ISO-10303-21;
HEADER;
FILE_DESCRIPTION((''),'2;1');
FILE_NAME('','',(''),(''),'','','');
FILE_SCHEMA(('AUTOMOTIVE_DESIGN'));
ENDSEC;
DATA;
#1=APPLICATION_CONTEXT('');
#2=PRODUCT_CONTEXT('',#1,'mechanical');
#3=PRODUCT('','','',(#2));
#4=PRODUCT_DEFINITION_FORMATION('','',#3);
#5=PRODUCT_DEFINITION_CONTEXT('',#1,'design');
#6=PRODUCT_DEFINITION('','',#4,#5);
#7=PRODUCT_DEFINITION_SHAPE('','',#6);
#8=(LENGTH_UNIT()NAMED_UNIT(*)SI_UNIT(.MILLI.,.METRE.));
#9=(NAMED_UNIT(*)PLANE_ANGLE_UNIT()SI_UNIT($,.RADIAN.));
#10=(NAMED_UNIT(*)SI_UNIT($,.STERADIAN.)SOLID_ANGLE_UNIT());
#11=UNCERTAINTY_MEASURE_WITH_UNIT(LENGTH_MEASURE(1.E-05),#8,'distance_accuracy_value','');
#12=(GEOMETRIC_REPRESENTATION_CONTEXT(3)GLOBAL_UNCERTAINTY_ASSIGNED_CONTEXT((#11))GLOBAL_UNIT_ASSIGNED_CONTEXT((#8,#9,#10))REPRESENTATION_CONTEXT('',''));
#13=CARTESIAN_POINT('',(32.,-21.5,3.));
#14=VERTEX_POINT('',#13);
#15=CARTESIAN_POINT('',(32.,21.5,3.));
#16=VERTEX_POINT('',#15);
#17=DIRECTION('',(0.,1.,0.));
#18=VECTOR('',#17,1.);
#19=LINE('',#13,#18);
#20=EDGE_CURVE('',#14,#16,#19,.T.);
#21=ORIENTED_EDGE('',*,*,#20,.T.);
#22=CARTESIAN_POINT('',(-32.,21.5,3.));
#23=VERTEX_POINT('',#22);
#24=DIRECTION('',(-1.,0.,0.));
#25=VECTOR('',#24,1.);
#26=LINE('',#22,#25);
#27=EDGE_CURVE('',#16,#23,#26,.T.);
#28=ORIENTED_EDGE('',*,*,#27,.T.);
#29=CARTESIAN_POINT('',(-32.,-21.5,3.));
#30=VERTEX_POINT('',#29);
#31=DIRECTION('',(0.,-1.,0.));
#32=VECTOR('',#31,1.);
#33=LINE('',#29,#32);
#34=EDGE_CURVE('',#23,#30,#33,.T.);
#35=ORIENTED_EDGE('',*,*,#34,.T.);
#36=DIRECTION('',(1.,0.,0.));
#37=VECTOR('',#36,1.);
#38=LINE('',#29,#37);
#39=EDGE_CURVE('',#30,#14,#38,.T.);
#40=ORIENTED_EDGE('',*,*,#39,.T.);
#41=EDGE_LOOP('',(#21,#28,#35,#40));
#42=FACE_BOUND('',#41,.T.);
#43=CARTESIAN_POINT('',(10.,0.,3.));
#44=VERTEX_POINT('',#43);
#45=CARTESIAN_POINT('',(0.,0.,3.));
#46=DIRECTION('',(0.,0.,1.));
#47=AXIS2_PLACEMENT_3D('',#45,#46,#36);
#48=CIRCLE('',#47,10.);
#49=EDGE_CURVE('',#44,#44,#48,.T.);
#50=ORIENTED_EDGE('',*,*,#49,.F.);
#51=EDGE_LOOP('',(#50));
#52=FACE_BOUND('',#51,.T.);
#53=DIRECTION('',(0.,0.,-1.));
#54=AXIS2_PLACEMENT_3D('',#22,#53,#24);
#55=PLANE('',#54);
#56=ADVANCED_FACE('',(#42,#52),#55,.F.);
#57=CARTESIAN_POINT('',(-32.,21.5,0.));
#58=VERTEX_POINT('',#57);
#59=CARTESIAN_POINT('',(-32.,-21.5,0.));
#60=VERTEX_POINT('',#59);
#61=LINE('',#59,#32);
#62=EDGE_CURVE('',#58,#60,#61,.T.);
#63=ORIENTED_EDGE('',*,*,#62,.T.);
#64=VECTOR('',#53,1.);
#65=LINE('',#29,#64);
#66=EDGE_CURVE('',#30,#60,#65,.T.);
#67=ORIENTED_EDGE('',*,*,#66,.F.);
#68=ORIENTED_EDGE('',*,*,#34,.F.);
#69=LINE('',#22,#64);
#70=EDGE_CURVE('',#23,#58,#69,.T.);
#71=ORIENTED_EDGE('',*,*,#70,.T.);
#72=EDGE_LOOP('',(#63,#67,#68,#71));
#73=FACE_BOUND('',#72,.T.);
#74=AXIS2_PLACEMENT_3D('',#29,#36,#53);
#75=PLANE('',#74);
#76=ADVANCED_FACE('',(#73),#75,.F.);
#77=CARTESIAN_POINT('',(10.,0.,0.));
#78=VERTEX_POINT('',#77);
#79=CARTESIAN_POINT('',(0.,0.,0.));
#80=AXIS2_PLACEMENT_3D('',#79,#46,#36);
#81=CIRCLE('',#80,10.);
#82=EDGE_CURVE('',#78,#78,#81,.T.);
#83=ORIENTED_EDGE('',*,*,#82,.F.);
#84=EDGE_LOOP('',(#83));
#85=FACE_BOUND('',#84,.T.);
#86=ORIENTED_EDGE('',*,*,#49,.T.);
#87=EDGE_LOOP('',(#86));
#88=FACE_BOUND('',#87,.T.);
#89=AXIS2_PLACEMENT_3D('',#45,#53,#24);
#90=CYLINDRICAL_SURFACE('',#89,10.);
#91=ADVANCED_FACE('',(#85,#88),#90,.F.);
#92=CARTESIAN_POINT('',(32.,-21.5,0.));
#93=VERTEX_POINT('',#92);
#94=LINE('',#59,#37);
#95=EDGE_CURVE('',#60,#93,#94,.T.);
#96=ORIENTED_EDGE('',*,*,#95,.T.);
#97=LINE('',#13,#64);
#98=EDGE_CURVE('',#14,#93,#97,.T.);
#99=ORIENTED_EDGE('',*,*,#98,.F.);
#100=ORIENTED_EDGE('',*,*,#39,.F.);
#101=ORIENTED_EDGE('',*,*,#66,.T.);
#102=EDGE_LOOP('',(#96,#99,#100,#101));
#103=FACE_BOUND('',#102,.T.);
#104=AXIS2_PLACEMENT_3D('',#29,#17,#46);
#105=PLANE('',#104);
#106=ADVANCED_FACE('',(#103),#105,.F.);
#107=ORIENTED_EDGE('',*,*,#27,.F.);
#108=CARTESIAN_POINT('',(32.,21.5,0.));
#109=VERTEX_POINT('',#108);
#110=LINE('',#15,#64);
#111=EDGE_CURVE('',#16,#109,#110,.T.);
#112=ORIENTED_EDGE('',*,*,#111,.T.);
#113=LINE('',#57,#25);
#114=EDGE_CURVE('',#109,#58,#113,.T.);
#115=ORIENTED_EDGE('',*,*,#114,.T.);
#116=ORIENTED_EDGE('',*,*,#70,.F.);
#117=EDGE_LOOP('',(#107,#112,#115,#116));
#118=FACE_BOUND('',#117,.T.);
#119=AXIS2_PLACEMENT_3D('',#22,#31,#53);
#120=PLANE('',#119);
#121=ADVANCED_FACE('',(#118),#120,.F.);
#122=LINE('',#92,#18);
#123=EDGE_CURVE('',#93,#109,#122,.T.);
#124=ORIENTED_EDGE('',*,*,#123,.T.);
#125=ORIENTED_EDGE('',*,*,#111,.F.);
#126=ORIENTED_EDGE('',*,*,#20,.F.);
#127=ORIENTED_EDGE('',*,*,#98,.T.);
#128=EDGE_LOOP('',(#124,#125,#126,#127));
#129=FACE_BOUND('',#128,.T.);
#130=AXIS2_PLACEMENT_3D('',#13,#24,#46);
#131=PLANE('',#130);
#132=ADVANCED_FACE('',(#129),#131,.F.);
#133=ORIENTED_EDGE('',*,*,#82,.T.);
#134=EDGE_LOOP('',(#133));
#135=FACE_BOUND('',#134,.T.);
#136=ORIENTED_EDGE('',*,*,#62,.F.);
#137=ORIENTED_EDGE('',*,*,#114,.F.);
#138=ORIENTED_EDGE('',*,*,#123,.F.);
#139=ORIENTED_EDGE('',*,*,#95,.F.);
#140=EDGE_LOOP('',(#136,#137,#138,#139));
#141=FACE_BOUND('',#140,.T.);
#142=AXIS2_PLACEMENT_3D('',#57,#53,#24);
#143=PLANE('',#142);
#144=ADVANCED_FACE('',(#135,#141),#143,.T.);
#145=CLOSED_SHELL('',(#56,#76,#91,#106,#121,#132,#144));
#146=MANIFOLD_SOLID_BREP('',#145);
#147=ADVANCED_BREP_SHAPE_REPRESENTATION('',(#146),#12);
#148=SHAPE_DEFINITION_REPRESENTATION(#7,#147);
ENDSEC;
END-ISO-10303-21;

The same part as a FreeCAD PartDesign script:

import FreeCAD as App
import Part
import Sketcher
Q = App.Units.Quantity

doc = App.newDocument("Part")
body = doc.addObject("PartDesign::Body", "Body")

sketch1 = doc.addObject("Sketcher::SketchObject", "Sketch")
body.addObject(sketch1)
sketch1.AttachmentSupport = (doc.XY_Plane, [""])
sketch1.MapMode = "FlatFace"
sketch1.addGeometry(Part.LineSegment(App.Vector(-32, 22, 0), App.Vector(-32, -22, 0)), False)
sketch1.addGeometry(Part.LineSegment(App.Vector(-32, -22, 0), App.Vector(32, -22, 0)), False)
sketch1.addGeometry(Part.LineSegment(App.Vector(32, -22, 0), App.Vector(32, 22, 0)), False)
sketch1.addGeometry(Part.LineSegment(App.Vector(32, 22, 0), App.Vector(-32, 22, 0)), False)
sketch1.addGeometry(Part.Circle(App.Vector(0, 0, 0), App.Vector(0, 0, 1), 10), False)
sketch1.addConstraint(Sketcher.Constraint("Coincident", 0, 2, 1, 1))
sketch1.addConstraint(Sketcher.Constraint("Coincident", 1, 2, 2, 1))
sketch1.addConstraint(Sketcher.Constraint("Coincident", 2, 2, 3, 1))
sketch1.addConstraint(Sketcher.Constraint("Coincident", 3, 2, 0, 1))
sketch1.addConstraint(Sketcher.Constraint("Vertical", 0))
sketch1.addConstraint(Sketcher.Constraint("Horizontal", 1))
sketch1.addConstraint(Sketcher.Constraint("Vertical", 2))
sketch1.addConstraint(Sketcher.Constraint("Horizontal", 3))
sketch1.addConstraint(Sketcher.Constraint("Coincident", 4, 3, -1, 1))
sketch1.addConstraint(Sketcher.Constraint("Symmetric", 0, 2, 2, 2, -1, 1))
sketch1.addConstraint(Sketcher.Constraint("Diameter", 4, Q("20 mm")))
sketch1.addConstraint(Sketcher.Constraint("DistanceX", 1, 1, 1, 2, Q("64 mm")))
sketch1.addConstraint(Sketcher.Constraint("DistanceY", 0, 2, 0, 1, Q("43 mm")))
pad1 = doc.addObject("PartDesign::Pad", "Pad")
body.addObject(pad1)
pad1.Profile = sketch1
pad1.Length = 3

doc.recompute()
